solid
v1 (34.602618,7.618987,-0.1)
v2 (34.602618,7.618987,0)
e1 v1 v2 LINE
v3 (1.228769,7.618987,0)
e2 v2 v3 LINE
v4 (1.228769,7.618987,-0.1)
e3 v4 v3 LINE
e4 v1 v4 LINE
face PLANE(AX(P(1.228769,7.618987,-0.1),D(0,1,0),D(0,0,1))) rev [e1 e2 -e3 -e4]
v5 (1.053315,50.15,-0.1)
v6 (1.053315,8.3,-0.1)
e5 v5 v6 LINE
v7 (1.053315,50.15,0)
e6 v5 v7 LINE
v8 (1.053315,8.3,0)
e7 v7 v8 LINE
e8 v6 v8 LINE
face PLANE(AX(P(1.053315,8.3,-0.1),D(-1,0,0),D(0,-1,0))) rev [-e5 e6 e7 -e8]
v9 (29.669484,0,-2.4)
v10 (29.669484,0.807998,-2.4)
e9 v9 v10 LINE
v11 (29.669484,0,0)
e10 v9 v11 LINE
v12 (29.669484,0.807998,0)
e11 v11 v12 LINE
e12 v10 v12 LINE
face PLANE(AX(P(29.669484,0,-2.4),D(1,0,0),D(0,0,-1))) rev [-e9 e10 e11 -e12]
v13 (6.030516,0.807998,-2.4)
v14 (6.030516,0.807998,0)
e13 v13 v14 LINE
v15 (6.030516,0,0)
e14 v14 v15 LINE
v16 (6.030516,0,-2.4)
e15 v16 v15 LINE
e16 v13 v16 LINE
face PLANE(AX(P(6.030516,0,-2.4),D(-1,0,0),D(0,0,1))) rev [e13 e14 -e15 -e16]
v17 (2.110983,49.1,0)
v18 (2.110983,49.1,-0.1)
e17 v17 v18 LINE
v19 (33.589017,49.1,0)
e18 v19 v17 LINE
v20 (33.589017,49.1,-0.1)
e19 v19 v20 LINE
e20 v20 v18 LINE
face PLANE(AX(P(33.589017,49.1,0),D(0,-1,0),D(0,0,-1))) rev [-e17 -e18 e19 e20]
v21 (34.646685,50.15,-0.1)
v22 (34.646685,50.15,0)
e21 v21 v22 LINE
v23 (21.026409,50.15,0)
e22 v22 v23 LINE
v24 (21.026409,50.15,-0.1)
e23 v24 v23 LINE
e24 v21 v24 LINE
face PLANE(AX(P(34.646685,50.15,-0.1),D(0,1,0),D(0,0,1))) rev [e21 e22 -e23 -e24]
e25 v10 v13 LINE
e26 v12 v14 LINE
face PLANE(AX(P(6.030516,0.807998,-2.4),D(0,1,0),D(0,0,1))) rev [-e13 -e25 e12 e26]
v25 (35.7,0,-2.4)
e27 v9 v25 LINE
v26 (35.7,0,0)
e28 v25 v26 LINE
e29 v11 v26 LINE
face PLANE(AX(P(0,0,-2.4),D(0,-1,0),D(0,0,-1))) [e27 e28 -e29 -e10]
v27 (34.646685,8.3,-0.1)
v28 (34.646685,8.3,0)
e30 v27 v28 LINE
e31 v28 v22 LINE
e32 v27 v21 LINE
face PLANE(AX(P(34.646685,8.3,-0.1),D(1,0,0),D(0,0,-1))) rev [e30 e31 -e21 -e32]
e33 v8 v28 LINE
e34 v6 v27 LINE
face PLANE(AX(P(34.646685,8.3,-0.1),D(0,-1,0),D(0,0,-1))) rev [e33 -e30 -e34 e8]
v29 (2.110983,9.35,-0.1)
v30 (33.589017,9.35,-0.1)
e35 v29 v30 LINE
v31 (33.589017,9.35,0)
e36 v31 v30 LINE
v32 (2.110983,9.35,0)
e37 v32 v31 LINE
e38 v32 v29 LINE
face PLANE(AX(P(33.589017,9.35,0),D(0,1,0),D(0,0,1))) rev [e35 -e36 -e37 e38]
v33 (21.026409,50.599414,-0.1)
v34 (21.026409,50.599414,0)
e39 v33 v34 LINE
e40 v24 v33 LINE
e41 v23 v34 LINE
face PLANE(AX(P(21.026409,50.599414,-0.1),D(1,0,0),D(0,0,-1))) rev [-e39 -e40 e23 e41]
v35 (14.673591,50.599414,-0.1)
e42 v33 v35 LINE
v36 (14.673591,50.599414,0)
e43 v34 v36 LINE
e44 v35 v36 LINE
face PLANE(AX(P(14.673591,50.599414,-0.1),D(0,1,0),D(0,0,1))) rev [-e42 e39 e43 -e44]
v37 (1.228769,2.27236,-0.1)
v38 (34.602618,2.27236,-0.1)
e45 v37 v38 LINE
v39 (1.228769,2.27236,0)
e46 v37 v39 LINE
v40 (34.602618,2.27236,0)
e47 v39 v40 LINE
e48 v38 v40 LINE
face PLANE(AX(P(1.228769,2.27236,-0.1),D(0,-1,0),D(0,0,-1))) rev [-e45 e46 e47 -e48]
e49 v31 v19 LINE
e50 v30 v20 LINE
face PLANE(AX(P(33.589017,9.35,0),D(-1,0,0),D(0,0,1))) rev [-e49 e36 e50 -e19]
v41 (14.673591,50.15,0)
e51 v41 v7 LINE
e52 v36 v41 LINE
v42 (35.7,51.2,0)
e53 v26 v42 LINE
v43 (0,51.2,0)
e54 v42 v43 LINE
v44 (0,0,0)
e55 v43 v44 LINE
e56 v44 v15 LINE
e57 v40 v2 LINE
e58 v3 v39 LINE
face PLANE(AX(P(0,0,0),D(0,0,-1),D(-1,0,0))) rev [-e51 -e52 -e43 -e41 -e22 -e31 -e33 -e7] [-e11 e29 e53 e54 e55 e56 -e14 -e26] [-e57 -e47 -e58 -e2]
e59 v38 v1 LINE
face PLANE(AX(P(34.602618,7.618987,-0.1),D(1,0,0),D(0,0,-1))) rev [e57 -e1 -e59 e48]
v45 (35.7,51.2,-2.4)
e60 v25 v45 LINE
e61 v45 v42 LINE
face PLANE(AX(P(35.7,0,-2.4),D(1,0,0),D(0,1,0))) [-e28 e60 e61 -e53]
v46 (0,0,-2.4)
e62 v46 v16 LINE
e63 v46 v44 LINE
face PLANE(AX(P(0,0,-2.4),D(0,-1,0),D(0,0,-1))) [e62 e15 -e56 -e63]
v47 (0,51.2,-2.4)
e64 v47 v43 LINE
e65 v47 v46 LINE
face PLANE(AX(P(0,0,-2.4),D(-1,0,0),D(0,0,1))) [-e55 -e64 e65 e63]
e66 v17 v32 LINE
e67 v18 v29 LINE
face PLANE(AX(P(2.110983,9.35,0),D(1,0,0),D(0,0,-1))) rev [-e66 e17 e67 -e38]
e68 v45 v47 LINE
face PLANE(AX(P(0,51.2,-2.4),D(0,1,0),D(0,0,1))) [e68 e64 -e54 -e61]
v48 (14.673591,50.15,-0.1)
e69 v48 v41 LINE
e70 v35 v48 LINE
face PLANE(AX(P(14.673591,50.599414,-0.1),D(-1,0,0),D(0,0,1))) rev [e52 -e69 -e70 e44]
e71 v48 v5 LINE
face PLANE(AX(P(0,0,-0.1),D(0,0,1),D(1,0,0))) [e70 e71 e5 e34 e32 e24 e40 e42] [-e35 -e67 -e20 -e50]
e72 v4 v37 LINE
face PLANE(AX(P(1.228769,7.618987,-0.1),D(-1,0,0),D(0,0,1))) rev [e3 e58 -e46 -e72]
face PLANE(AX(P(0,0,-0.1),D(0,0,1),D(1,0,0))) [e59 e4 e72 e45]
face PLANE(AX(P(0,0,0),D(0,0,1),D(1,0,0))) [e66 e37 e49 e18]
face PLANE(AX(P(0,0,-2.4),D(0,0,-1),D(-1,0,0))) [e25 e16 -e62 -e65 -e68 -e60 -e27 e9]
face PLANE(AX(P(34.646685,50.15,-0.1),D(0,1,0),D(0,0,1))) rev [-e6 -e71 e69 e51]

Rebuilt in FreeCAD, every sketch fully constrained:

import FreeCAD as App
import Part
import Sketcher
from FreeCAD import Vector
Q = App.Units.Quantity

doc = App.newDocument("Part")
body = doc.addObject("PartDesign::Body", "Body")

# Sketch on XY plane
sketch1 = body.newObject("Sketcher::SketchObject", "Sketch")
sketch1.AttachmentSupport = (doc.getObject("XY_Plane"), [""])
sketch1.MapMode = "FlatFace"
sketch1.addGeometry([
    Part.LineSegment(Vector(0, 51, 0), Vector(0, 0, 0)),
    Part.LineSegment(Vector(0, 0, 0), Vector(36, 0, 0)),
    Part.LineSegment(Vector(36, 0, 0), Vector(36, 51, 0)),
    Part.LineSegment(Vector(36, 51, 0), Vector(0, 51, 0)),
], False)
sketch1.addConstraint([
    Sketcher.Constraint("Coincident", 0, 2, 1, 1),
    Sketcher.Constraint("Coincident", 1, 2, 2, 1),
    Sketcher.Constraint("Coincident", 2, 2, 3, 1),
    Sketcher.Constraint("Coincident", 3, 2, 0, 1),
    Sketcher.Constraint("Vertical", 0),
    Sketcher.Constraint("Horizontal", 1),
    Sketcher.Constraint("Vertical", 2),
    Sketcher.Constraint("Horizontal", 3),
    Sketcher.Constraint("Coincident", 0, 2, -1, 1),
    Sketcher.Constraint("DistanceX", 1, 1, 1, 2, Q("35.7 mm")),
    Sketcher.Constraint("DistanceY", 0, 2, 0, 1, Q("51.2 mm")),
])
pad1 = body.newObject("PartDesign::Pad", "Pad")
pad1.Profile = sketch1
pad1.Length = 2.4
pad1.Reversed = True

# Sketch on XY plane
sketch2 = body.newObject("Sketcher::SketchObject", "Sketch001")
sketch2.AttachmentSupport = (doc.getObject("XY_Plane"), [""])
sketch2.MapMode = "FlatFace"
sketch2.addGeometry([
    Part.LineSegment(Vector(1, 50, 0), Vector(1, 8, 0)),
    Part.LineSegment(Vector(1, 8, 0), Vector(35, 8, 0)),
    Part.LineSegment(Vector(35, 8, 0), Vector(35, 50, 0)),
    Part.LineSegment(Vector(35, 50, 0), Vector(1, 50, 0)),
], False)
sketch2.addConstraint([
    Sketcher.Constraint("Coincident", 0, 2, 1, 1),
    Sketcher.Constraint("Coincident", 1, 2, 2, 1),
    Sketcher.Constraint("Coincident", 2, 2, 3, 1),
    Sketcher.Constraint("Coincident", 3, 2, 0, 1),
    Sketcher.Constraint("Vertical", 0),
    Sketcher.Constraint("Horizontal", 1),
    Sketcher.Constraint("Vertical", 2),
    Sketcher.Constraint("Horizontal", 3),
    Sketcher.Constraint("DistanceY", 0, 2, 0, 1, Q("41.85 mm")),
    Sketcher.Constraint("DistanceY", -1, 1, 0, 2, Q("8.3 mm")),
    Sketcher.Constraint("DistanceX", 1, 1, 1, 2, Q("33.59337 mm")),
    Sketcher.Constraint("DistanceX", -1, 1, 0, 2, Q("1.053315 mm")),
])
pocket1 = body.newObject("PartDesign::Pocket", "Pocket")
pocket1.Profile = sketch2
pocket1.Length = 0.1

# Sketch on XY plane
sketch3 = body.newObject("Sketcher::SketchObject", "Sketch002")
sketch3.AttachmentSupport = (doc.getObject("XY_Plane"), [""])
sketch3.MapMode = "FlatFace"
sketch3.addGeometry([
    Part.LineSegment(Vector(14.67, 50.6, 0), Vector(14.67, 50.15, 0)),
    Part.LineSegment(Vector(14.67, 50.15, 0), Vector(21.03, 50.15, 0)),
    Part.LineSegment(Vector(21.03, 50.15, 0), Vector(21.03, 50.6, 0)),
    Part.LineSegment(Vector(21.03, 50.6, 0), Vector(14.67, 50.6, 0)),
], False)
sketch3.addConstraint([
    Sketcher.Constraint("Coincident", 0, 2, 1, 1),
    Sketcher.Constraint("Coincident", 1, 2, 2, 1),
    Sketcher.Constraint("Coincident", 2, 2, 3, 1),
    Sketcher.Constraint("Coincident", 3, 2, 0, 1),
    Sketcher.Constraint("Vertical", 0),
    Sketcher.Constraint("Horizontal", 1),
    Sketcher.Constraint("Vertical", 2),
    Sketcher.Constraint("Horizontal", 3),
    Sketcher.Constraint("DistanceY", -1, 1, 0, 2, Q("50.15 mm")),
    Sketcher.Constraint("DistanceX", 1, 1, 1, 2, Q("6.352818 mm")),
    Sketcher.Constraint("DistanceY", 0, 2, 0, 1, Q("0.449414 mm")),
    Sketcher.Constraint("DistanceX", -1, 1, 0, 2, Q("14.673591 mm")),
])
pocket2 = body.newObject("PartDesign::Pocket", "Pocket001")
pocket2.Profile = sketch3
pocket2.Length = 0.1

# Sketch on XY plane
sketch4 = body.newObject("Sketcher::SketchObject", "Sketch003")
sketch4.AttachmentSupport = (doc.getObject("XY_Plane"), [""])
sketch4.MapMode = "FlatFace"
sketch4.AttachmentOffset = App.Placement(Vector(0, 0, -0.1), App.Rotation())
sketch4.addGeometry([
    Part.LineSegment(Vector(2, 49, 0), Vector(2, 9, 0)),
    Part.LineSegment(Vector(2, 9, 0), Vector(34, 9, 0)),
    Part.LineSegment(Vector(34, 9, 0), Vector(34, 49, 0)),
    Part.LineSegment(Vector(34, 49, 0), Vector(2, 49, 0)),
], False)
sketch4.addConstraint([
    Sketcher.Constraint("Coincident", 0, 2, 1, 1),
    Sketcher.Constraint("Coincident", 1, 2, 2, 1),
    Sketcher.Constraint("Coincident", 2, 2, 3, 1),
    Sketcher.Constraint("Coincident", 3, 2, 0, 1),
    Sketcher.Constraint("Vertical", 0),
    Sketcher.Constraint("Horizontal", 1),
    Sketcher.Constraint("Vertical", 2),
    Sketcher.Constraint("Horizontal", 3),
    Sketcher.Constraint("DistanceY", 0, 2, 0, 1, Q("39.75 mm")),
    Sketcher.Constraint("DistanceY", -1, 1, 2, 2, Q("49.1 mm")),
    Sketcher.Constraint("DistanceX", 1, 1, 1, 2, Q("31.478034 mm")),
    Sketcher.Constraint("DistanceX", -1, 1, 0, 2, Q("2.110983 mm")),
])
pad2 = body.newObject("PartDesign::Pad", "Pad001")
pad2.Profile = sketch4
pad2.Length = 0.1

# Sketch on XY plane
sketch5 = body.newObject("Sketcher::SketchObject", "Sketch004")
sketch5.AttachmentSupport = (doc.getObject("XY_Plane"), [""])
sketch5.MapMode = "FlatFace"
sketch5.addGeometry([
    Part.LineSegment(Vector(1, 8, 0), Vector(1, 2, 0)),
    Part.LineSegment(Vector(1, 2, 0), Vector(35, 2, 0)),
    Part.LineSegment(Vector(35, 2, 0), Vector(35, 8, 0)),
    Part.LineSegment(Vector(35, 8, 0), Vector(1, 8, 0)),
], False)
sketch5.addConstraint([
    Sketcher.Constraint("Coincident", 0, 2, 1, 1),
    Sketcher.Constraint("Coincident", 1, 2, 2, 1),
    Sketcher.Constraint("Coincident", 2, 2, 3, 1),
    Sketcher.Constraint("Coincident", 3, 2, 0, 1),
    Sketcher.Constraint("Vertical", 0),
    Sketcher.Constraint("Horizontal", 1),
    Sketcher.Constraint("Vertical", 2),
    Sketcher.Constraint("Horizontal", 3),
    Sketcher.Constraint("DistanceX", 1, 1, 1, 2, Q("33.373849 mm")),
    Sketcher.Constraint("DistanceY", 0, 2, 0, 1, Q("5.346627 mm")),
    Sketcher.Constraint("DistanceX", -1, 1, 0, 2, Q("1.228769 mm")),
    Sketcher.Constraint("DistanceY", -1, 1, 0, 2, Q("2.27236 mm")),
])
pocket3 = body.newObject("PartDesign::Pocket", "Pocket002")
pocket3.Profile = sketch5
pocket3.Length = 0.1

# Sketch on XY plane
sketch6 = body.newObject("Sketcher::SketchObject", "Sketch005")
sketch6.AttachmentSupport = (doc.getObject("XY_Plane"), [""])
sketch6.MapMode = "FlatFace"
sketch6.addGeometry([
    Part.LineSegment(Vector(6, 0.8, 0), Vector(6, 0, 0)),
    Part.LineSegment(Vector(6, 0, 0), Vector(29.7, 0, 0)),
    Part.LineSegment(Vector(29.7, 0, 0), Vector(29.7, 0.8, 0)),
    Part.LineSegment(Vector(29.7, 0.8, 0), Vector(6, 0.8, 0)),
], False)
sketch6.addConstraint([
    Sketcher.Constraint("Coincident", 0, 2, 1, 1),
    Sketcher.Constraint("Coincident", 1, 2, 2, 1),
    Sketcher.Constraint("Coincident", 2, 2, 3, 1),
    Sketcher.Constraint("Coincident", 3, 2, 0, 1),
    Sketcher.Constraint("Vertical", 0),
    Sketcher.Constraint("Horizontal", 1),
    Sketcher.Constraint("Vertical", 2),
    Sketcher.Constraint("Horizontal", 3),
    Sketcher.Constraint("PointOnObject", 0, 2, -1),
    Sketcher.Constraint("DistanceX", 1, 1, 1, 2, Q("23.638967 mm")),
    Sketcher.Constraint("DistanceY", 0, 2, 0, 1, Q("0.807998 mm")),
    Sketcher.Constraint("DistanceX", -1, 1, 0, 2, Q("6.030516 mm")),
])
pocket4 = body.newObject("PartDesign::Pocket", "Pocket003")
pocket4.Profile = sketch6
pocket4.Type = "ThroughAll"

doc.recompute()
